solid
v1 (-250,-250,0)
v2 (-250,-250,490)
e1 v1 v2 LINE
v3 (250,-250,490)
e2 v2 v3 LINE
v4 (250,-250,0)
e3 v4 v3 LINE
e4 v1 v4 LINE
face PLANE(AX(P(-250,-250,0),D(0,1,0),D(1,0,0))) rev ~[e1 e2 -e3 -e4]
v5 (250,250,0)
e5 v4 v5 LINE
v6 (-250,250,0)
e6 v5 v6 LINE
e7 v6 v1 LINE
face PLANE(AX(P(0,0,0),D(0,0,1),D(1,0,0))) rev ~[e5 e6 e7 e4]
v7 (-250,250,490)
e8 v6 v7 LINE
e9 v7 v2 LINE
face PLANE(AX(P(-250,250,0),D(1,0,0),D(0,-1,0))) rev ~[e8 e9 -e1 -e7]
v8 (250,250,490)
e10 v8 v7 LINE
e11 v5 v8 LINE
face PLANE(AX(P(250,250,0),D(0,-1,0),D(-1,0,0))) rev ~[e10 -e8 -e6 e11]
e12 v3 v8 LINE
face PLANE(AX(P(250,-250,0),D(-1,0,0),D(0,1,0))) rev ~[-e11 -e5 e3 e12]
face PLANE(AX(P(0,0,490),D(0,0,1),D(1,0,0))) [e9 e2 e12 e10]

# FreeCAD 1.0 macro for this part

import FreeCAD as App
import Part
import Sketcher

doc = App.newDocument("Part")
body = doc.addObject("PartDesign::Body", "Body")

sketch1 = doc.addObject("Sketcher::SketchObject", "Sketch")
body.addObject(sketch1)
sketch1.AttachmentSupport = (doc.XY_Plane, [""])
sketch1.MapMode = "FlatFace"
sketch1.addGeometry(Part.LineSegment(App.Vector(-250, 250, 0), App.Vector(-250, -250, 0)), False)
sketch1.addGeometry(Part.LineSegment(App.Vector(-250, -250, 0), App.Vector(250, -250, 0)), False)
sketch1.addGeometry(Part.LineSegment(App.Vector(250, -250, 0), App.Vector(250, 250, 0)), False)
sketch1.addGeometry(Part.LineSegment(App.Vector(250, 250, 0), App.Vector(-250, 250, 0)), False)
sketch1.addConstraint(Sketcher.Constraint("Coincident", 0, 2, 1, 1))
sketch1.addConstraint(Sketcher.Constraint("Coincident", 1, 2, 2, 1))
sketch1.addConstraint(Sketcher.Constraint("Coincident", 2, 2, 3, 1))
sketch1.addConstraint(Sketcher.Constraint("Coincident", 3, 2, 0, 1))
sketch1.addConstraint(Sketcher.Constraint("Vertical", 0))
sketch1.addConstraint(Sketcher.Constraint("Horizontal", 1))
sketch1.addConstraint(Sketcher.Constraint("Vertical", 2))
sketch1.addConstraint(Sketcher.Constraint("Horizontal", 3))
sketch1.addConstraint(Sketcher.Constraint("Symmetric", 0, 2, 2, 2, -1, 1))
sketch1.addConstraint(Sketcher.Constraint("Equal", 3, 0))
sketch1.addConstraint(Sketcher.Constraint("DistanceX", 1, 1, 1, 2, 500.0))
pad1 = doc.addObject("PartDesign::Pad", "Pad")
body.addObject(pad1)
pad1.Profile = sketch1
pad1.Length = 490

doc.recompute()
